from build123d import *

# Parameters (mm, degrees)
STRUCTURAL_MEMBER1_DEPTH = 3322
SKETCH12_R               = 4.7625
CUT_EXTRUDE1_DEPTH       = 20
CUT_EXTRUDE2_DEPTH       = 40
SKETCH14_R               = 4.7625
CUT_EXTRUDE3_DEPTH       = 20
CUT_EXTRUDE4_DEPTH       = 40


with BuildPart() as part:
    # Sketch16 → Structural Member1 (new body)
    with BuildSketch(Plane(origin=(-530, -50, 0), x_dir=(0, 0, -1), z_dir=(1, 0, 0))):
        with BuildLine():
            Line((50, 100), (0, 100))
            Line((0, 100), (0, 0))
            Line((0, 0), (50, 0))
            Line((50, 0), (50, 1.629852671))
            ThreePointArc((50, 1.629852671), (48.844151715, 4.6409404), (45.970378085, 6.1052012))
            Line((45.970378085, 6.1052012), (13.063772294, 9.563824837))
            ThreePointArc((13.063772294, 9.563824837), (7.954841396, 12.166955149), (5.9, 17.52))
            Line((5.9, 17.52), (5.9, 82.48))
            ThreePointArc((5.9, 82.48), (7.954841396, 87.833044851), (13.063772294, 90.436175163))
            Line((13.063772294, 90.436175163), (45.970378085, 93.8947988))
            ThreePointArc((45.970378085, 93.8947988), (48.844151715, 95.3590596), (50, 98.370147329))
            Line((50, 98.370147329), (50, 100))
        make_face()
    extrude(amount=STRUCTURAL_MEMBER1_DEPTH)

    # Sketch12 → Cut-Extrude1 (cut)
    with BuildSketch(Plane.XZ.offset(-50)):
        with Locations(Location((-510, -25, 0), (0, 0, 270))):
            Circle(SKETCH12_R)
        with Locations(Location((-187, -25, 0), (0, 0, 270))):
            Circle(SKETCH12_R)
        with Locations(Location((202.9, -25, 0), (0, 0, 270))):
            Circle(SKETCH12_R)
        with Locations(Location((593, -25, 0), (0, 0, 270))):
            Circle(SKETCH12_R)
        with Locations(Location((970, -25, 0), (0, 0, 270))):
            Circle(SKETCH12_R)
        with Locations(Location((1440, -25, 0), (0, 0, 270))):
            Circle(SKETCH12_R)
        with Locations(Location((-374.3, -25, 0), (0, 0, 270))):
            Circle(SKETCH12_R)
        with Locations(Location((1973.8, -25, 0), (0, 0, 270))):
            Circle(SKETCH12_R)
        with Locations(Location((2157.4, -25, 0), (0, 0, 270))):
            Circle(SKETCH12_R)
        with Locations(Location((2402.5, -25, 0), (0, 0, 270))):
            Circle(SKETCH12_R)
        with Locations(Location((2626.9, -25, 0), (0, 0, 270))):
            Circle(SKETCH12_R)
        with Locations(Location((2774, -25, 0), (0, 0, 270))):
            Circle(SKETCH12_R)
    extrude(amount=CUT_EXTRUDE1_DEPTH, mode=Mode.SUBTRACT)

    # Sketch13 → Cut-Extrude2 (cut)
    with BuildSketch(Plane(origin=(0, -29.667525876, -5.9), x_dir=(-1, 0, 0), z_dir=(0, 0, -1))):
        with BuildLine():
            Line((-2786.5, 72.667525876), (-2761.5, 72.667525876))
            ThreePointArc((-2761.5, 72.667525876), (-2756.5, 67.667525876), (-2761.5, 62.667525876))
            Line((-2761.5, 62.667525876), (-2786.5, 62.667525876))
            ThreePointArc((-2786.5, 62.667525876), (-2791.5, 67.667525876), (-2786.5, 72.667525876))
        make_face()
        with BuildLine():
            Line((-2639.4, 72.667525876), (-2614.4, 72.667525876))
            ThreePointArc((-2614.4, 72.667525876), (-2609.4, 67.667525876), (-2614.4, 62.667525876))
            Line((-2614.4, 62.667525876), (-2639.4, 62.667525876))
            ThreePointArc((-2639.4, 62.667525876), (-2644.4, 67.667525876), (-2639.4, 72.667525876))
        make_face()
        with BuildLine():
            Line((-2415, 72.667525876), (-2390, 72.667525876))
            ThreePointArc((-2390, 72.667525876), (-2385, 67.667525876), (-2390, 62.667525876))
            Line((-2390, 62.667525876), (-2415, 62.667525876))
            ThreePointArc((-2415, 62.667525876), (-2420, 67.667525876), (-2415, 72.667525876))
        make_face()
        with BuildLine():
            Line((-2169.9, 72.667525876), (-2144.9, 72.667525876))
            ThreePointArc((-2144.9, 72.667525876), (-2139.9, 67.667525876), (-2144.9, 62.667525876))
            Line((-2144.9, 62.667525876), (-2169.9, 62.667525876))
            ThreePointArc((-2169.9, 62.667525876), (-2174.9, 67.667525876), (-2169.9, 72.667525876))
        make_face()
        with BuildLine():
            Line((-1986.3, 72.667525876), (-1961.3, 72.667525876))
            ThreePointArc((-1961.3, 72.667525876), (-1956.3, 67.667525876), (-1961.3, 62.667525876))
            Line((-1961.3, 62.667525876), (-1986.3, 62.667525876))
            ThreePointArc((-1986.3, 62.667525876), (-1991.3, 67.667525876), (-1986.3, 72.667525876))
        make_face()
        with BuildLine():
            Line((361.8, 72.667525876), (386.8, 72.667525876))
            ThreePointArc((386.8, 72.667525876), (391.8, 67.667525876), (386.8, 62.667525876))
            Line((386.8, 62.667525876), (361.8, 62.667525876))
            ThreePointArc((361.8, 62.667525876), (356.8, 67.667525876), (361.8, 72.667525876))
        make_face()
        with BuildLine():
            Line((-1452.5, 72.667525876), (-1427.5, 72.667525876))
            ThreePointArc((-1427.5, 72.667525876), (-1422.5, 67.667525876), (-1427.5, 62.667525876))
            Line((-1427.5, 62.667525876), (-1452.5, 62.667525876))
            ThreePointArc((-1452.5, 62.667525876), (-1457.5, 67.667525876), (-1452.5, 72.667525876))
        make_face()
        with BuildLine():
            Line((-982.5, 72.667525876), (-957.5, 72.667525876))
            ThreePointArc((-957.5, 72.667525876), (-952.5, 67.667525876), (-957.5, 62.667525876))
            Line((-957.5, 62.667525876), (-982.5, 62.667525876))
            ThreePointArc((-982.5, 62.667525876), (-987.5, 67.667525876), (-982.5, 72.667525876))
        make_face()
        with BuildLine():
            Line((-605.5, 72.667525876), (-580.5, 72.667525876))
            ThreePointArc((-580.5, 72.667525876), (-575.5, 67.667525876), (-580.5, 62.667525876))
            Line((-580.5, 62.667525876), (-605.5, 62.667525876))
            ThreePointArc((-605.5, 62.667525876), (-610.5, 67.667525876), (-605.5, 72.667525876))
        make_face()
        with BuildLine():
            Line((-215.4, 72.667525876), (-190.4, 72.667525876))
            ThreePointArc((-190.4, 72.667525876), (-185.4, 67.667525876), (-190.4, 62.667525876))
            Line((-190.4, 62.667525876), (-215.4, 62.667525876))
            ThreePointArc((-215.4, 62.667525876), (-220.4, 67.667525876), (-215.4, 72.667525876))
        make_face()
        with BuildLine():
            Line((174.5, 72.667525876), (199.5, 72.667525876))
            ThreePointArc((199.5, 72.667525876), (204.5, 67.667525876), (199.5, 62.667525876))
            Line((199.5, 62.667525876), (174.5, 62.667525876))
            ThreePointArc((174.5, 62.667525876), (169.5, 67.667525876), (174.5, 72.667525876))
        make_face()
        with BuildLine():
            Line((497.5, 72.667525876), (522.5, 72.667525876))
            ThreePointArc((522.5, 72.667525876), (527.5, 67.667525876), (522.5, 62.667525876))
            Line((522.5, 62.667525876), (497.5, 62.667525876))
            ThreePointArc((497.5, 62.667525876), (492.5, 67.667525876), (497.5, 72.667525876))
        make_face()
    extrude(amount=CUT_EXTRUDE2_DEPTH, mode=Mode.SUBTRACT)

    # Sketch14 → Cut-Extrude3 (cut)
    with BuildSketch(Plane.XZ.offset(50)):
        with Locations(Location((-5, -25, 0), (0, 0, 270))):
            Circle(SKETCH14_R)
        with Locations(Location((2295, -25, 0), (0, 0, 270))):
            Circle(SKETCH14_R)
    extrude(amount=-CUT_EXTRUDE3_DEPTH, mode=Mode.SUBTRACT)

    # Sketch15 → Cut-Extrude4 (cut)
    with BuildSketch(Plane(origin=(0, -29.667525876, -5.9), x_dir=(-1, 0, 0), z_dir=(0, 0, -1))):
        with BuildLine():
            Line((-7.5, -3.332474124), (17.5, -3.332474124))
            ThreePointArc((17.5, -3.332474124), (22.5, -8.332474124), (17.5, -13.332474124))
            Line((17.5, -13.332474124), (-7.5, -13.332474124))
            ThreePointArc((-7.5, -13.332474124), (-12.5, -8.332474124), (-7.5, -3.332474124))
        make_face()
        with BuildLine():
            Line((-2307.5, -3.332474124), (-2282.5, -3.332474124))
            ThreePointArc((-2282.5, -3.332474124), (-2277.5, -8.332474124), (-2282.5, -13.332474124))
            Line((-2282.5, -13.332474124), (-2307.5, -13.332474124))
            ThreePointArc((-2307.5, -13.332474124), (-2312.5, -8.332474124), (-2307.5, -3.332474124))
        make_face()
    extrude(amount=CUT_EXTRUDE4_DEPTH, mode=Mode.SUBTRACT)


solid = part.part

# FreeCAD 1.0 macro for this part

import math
import FreeCAD as App
import Part
import Sketcher
from FreeCAD import Vector
Q = App.Units.Quantity

doc = App.newDocument("Part")
body = doc.addObject("PartDesign::Body", "Body")

sketch1 = body.newObject("Sketcher::SketchObject", "Sketch")
sketch1.AttachmentSupport = (doc.getObject("YZ_Plane"), [""])
sketch1.MapMode = "FlatFace"
sketch1.AttachmentOffset = App.Placement(Vector(0, 0, -530), App.Rotation())
sketch1.addGeometry([
    Part.LineSegment(Vector(50, -50, 0), Vector(50, 0, 0)),
    Part.LineSegment(Vector(50, 0, 0), Vector(-50, 0, 0)),
    Part.LineSegment(Vector(-50, 0, 0), Vector(-50, -50, 0)),
    Part.LineSegment(Vector(-50, -50, 0), Vector(-48.4, -50, 0)),
    Part.ArcOfCircle(Part.Circle(Vector(-48.4, -45.5, 0), Vector(0, 0, 1), 4.5), math.radians(-90), math.radians(-6)),
    Part.LineSegment(Vector(-43.9, -46, 0), Vector(-40.4, -13.1, 0)),
    Part.ArcOfCircle(Part.Circle(Vector(-32.5, -13.9, 0), Vector(0, 0, 1), 8), math.radians(90), math.radians(174)),
    Part.LineSegment(Vector(-32.5, -5.9, 0), Vector(32.5, -5.9, 0)),
    Part.ArcOfCircle(Part.Circle(Vector(32.5, -13.9, 0), Vector(0, 0, 1), 8), math.radians(6), math.radians(90)),
    Part.LineSegment(Vector(40.4, -13.1, 0), Vector(43.9, -46, 0)),
    Part.ArcOfCircle(Part.Circle(Vector(48.4, -45.5, 0), Vector(0, 0, 1), 4.5), math.radians(-174), math.radians(-90)),
    Part.LineSegment(Vector(48.4, -50, 0), Vector(50, -50, 0)),
], False)
sketch1.addConstraint([
    Sketcher.Constraint("Coincident", 0, 2, 1, 1),
    Sketcher.Constraint("Coincident", 1, 2, 2, 1),
    Sketcher.Constraint("Coincident", 2, 2, 3, 1),
    Sketcher.Constraint("Tangent", 3, 2, 4, 1),
    Sketcher.Constraint("Tangent", 4, 2, 5, 1),
    Sketcher.Constraint("Tangent", 5, 2, 6, 2),
    Sketcher.Constraint("Tangent", 6, 1, 7, 1),
    Sketcher.Constraint("Tangent", 7, 2, 8, 2),
    Sketcher.Constraint("Tangent", 8, 1, 9, 1),
    Sketcher.Constraint("Tangent", 9, 2, 10, 1),
    Sketcher.Constraint("Tangent", 10, 2, 11, 1),
    Sketcher.Constraint("Coincident", 11, 2, 0, 1),
    Sketcher.Constraint("Vertical", 0),
    Sketcher.Constraint("Horizontal", 1),
    Sketcher.Constraint("Vertical", 2),
    Sketcher.Constraint("Horizontal", 3),
    Sketcher.Constraint("Horizontal", 7),
    Sketcher.Constraint("Horizontal", 11),
    Sketcher.Constraint("Equal", 6, 8),
    Sketcher.Constraint("Equal", 4, 10),
    Sketcher.Constraint("Symmetric", 0, 2, 1, 2, -1, 1),
    Sketcher.Constraint("Symmetric", 4, 3, 10, 3, -2),
    Sketcher.Constraint("Horizontal", 5, 2, 8, 1),
    Sketcher.Constraint("Radius", 6, 8.0),
    Sketcher.Constraint("Radius", 4, 4.5),
    Sketcher.Constraint("DistanceX", 1, 2, 1, 1, 100.0),
    Sketcher.Constraint("DistanceY", 0, 1, 0, 2, 50.0),
    Sketcher.Constraint("Angle", 5, Q("84 deg")),
    Sketcher.Constraint("DistanceX", 7, 1, 7, 2, 64.96),
    Sketcher.Constraint("DistanceY", 6, 3, -1, 1, 13.9),
])
pad1 = body.newObject("PartDesign::Pad", "Pad")
pad1.Profile = sketch1
pad1.Length = 3322

sketch2 = body.newObject("Sketcher::SketchObject", "Sketch001")
sketch2.AttachmentSupport = (doc.getObject("XZ_Plane"), [""])
sketch2.MapMode = "FlatFace"
sketch2.AttachmentOffset = App.Placement(Vector(0, 0, -50), App.Rotation())
sketch2.addGeometry([
    Part.Circle(Vector(-510, -25, 0), Vector(0, 0, 1), 4.8),
    Part.Circle(Vector(-187, -25, 0), Vector(0, 0, 1), 4.8),
    Part.Circle(Vector(202.9, -25, 0), Vector(0, 0, 1), 4.8),
    Part.Circle(Vector(593, -25, 0), Vector(0, 0, 1), 4.8),
    Part.Circle(Vector(970, -25, 0), Vector(0, 0, 1), 4.8),
    Part.Circle(Vector(1440, -25, 0), Vector(0, 0, 1), 4.8),
    Part.Circle(Vector(-374.3, -25, 0), Vector(0, 0, 1), 4.8),
    Part.Circle(Vector(1973.8, -25, 0), Vector(0, 0, 1), 4.8),
    Part.Circle(Vector(2157.4, -25, 0), Vector(0, 0, 1), 4.8),
    Part.Circle(Vector(2402.5, -25, 0), Vector(0, 0, 1), 4.8),
    Part.Circle(Vector(2626.9, -25, 0), Vector(0, 0, 1), 4.8),
    Part.Circle(Vector(2774, -25, 0), Vector(0, 0, 1), 4.8),
], False)
sketch2.addConstraint([
    Sketcher.Constraint("Equal", 0, 1),
    Sketcher.Constraint("Equal", 1, 2),
    Sketcher.Constraint("Equal", 2, 3),
    Sketcher.Constraint("Equal", 3, 4),
    Sketcher.Constraint("Equal", 4, 5),
    Sketcher.Constraint("Equal", 5, 6),
    Sketcher.Constraint("Equal", 6, 7),
    Sketcher.Constraint("Equal", 7, 8),
    Sketcher.Constraint("Equal", 8, 9),
    Sketcher.Constraint("Equal", 9, 10),
    Sketcher.Constraint("Equal", 10, 11),
    Sketcher.Constraint("Horizontal", 0, 3, 1, 3),
    Sketcher.Constraint("Horizontal", 1, 3, 2, 3),
    Sketcher.Constraint("Horizontal", 2, 3, 3, 3),
    Sketcher.Constraint("Horizontal", 3, 3, 4, 3),
    Sketcher.Constraint("Horizontal", 4, 3, 5, 3),
    Sketcher.Constraint("Horizontal", 5, 3, 6, 3),
    Sketcher.Constraint("Horizontal", 6, 3, 7, 3),
    Sketcher.Constraint("Horizontal", 7, 3, 8, 3),
    Sketcher.Constraint("Horizontal", 8, 3, 9, 3),
    Sketcher.Constraint("Horizontal", 9, 3, 10, 3),
    Sketcher.Constraint("Horizontal", 10, 3, 11, 3),
    Sketcher.Constraint("Diameter", 0, 9.525),
    Sketcher.Constraint("DistanceX", 0, 3, -1, 1, 510.0),
    Sketcher.Constraint("DistanceY", 0, 3, -1, 1, 25.0),
    Sketcher.Constraint("DistanceX", 1, 3, -1, 1, 187.0),
    Sketcher.Constraint("DistanceX", -1, 1, 3, 3, 593.0),
    Sketcher.Constraint("DistanceX", -1, 1, 4, 3, 970.0),
    Sketcher.Constraint("DistanceX", -1, 1, 5, 3, 1440.0),
    Sketcher.Constraint("DistanceX", -1, 1, 11, 3, 2774.0),
    Sketcher.Constraint("DistanceX", -1, 1, 2, 3, 202.9),
    Sketcher.Constraint("DistanceX", 6, 3, -1, 1, 374.3),
    Sketcher.Constraint("DistanceX", -1, 1, 7, 3, 1973.8),
    Sketcher.Constraint("DistanceX", -1, 1, 8, 3, 2157.4),
    Sketcher.Constraint("DistanceX", -1, 1, 9, 3, 2402.5),
    Sketcher.Constraint("DistanceX", -1, 1, 10, 3, 2626.9),
])
pocket1 = body.newObject("PartDesign::Pocket", "Pocket")
pocket1.Profile = sketch2
pocket1.Length = 20
pocket1.Reversed = True

sketch3 = body.newObject("Sketcher::SketchObject", "Sketch002")
sketch3.AttachmentSupport = (doc.getObject("XY_Plane"), [""])
sketch3.MapMode = "FlatFace"
sketch3.AttachmentOffset = App.Placement(Vector(0, 0, -5.9), App.Rotation())
sketch3.addGeometry([
    Part.LineSegment(Vector(2762, 43, 0), Vector(2786, 43, 0)),
    Part.ArcOfCircle(Part.Circle(Vector(2786, 38, 0), Vector(0, 0, 1), 5), math.radians(-90), math.radians(90)),
    Part.LineSegment(Vector(2786, 33, 0), Vector(2762, 33, 0)),
    Part.ArcOfCircle(Part.Circle(Vector(2762, 38, 0), Vector(0, 0, 1), 5), math.radians(90), math.radians(270)),
    Part.LineSegment(Vector(2614, 43, 0), Vector(2639, 43, 0)),
    Part.ArcOfCircle(Part.Circle(Vector(2639, 38, 0), Vector(0, 0, 1), 5), math.radians(-90), math.radians(90)),
    Part.LineSegment(Vector(2639, 33, 0), Vector(2614, 33, 0)),
    Part.ArcOfCircle(Part.Circle(Vector(2614, 38, 0), Vector(0, 0, 1), 5), math.radians(90), math.radians(270)),
    Part.LineSegment(Vector(2390, 43, 0), Vector(2415, 43, 0)),
    Part.ArcOfCircle(Part.Circle(Vector(2415, 38, 0), Vector(0, 0, 1), 5), math.radians(-90), math.radians(90)),
    Part.LineSegment(Vector(2415, 33, 0), Vector(2390, 33, 0)),
    Part.ArcOfCircle(Part.Circle(Vector(2390, 38, 0), Vector(0, 0, 1), 5), math.radians(90), math.radians(270)),
    Part.LineSegment(Vector(2145, 43, 0), Vector(2170, 43, 0)),
    Part.ArcOfCircle(Part.Circle(Vector(2170, 38, 0), Vector(0, 0, 1), 5), math.radians(-90), math.radians(90)),
    Part.LineSegment(Vector(2170, 33, 0), Vector(2145, 33, 0)),
    Part.ArcOfCircle(Part.Circle(Vector(2145, 38, 0), Vector(0, 0, 1), 5), math.radians(90), math.radians(270)),
    Part.LineSegment(Vector(1961, 43, 0), Vector(1986, 43, 0)),
    Part.ArcOfCircle(Part.Circle(Vector(1986, 38, 0), Vector(0, 0, 1), 5), math.radians(-90), math.radians(90)),
    Part.LineSegment(Vector(1986, 33, 0), Vector(1961, 33, 0)),
    Part.ArcOfCircle(Part.Circle(Vector(1961, 38, 0), Vector(0, 0, 1), 5), math.radians(90), math.radians(270)),
    Part.LineSegment(Vector(-387, 43, 0), Vector(-362, 43, 0)),
    Part.ArcOfCircle(Part.Circle(Vector(-362, 38, 0), Vector(0, 0, 1), 5), math.radians(-90), math.radians(90)),
    Part.LineSegment(Vector(-362, 33, 0), Vector(-387, 33, 0)),
    Part.ArcOfCircle(Part.Circle(Vector(-387, 38, 0), Vector(0, 0, 1), 5), math.radians(90), math.radians(270)),
    Part.LineSegment(Vector(1428, 43, 0), Vector(1452, 43, 0)),
    Part.ArcOfCircle(Part.Circle(Vector(1452, 38, 0), Vector(0, 0, 1), 5), math.radians(-90), math.radians(90)),
    Part.LineSegment(Vector(1452, 33, 0), Vector(1428, 33, 0)),
    Part.ArcOfCircle(Part.Circle(Vector(1428, 38, 0), Vector(0, 0, 1), 5), math.radians(90), math.radians(270)),
    Part.LineSegment(Vector(958, 43, 0), Vector(982, 43, 0)),
    Part.ArcOfCircle(Part.Circle(Vector(982, 38, 0), Vector(0, 0, 1), 5), math.radians(-90), math.radians(90)),
    Part.LineSegment(Vector(982, 33, 0), Vector(958, 33, 0)),
    Part.ArcOfCircle(Part.Circle(Vector(958, 38, 0), Vector(0, 0, 1), 5), math.radians(90), math.radians(270)),
    Part.LineSegment(Vector(580, 43, 0), Vector(606, 43, 0)),
    Part.ArcOfCircle(Part.Circle(Vector(606, 38, 0), Vector(0, 0, 1), 5), math.radians(-90), math.radians(90)),
    Part.LineSegment(Vector(606, 33, 0), Vector(580, 33, 0)),
    Part.ArcOfCircle(Part.Circle(Vector(580, 38, 0), Vector(0, 0, 1), 5), math.radians(90), math.radians(270)),
    Part.LineSegment(Vector(190, 43, 0), Vector(215, 43, 0)),
    Part.ArcOfCircle(Part.Circle(Vector(215, 38, 0), Vector(0, 0, 1), 5), math.radians(-90), math.radians(90)),
    Part.LineSegment(Vector(215, 33, 0), Vector(190, 33, 0)),
    Part.ArcOfCircle(Part.Circle(Vector(190, 38, 0), Vector(0, 0, 1), 5), math.radians(90), math.radians(270)),
    Part.LineSegment(Vector(-200, 43, 0), Vector(-174, 43, 0)),
    Part.ArcOfCircle(Part.Circle(Vector(-174, 38, 0), Vector(0, 0, 1), 5), math.radians(-90), math.radians(90)),
    Part.LineSegment(Vector(-174, 33, 0), Vector(-200, 33, 0)),
    Part.ArcOfCircle(Part.Circle(Vector(-200, 38, 0), Vector(0, 0, 1), 5), math.radians(90), math.radians(270)),
    Part.LineSegment(Vector(-522, 43, 0), Vector(-498, 43, 0)),
    Part.ArcOfCircle(Part.Circle(Vector(-498, 38, 0), Vector(0, 0, 1), 5), math.radians(-90), math.radians(90)),
    Part.LineSegment(Vector(-498, 33, 0), Vector(-522, 33, 0)),
    Part.ArcOfCircle(Part.Circle(Vector(-522, 38, 0), Vector(0, 0, 1), 5), math.radians(90), math.radians(270)),
], False)
sketch3.addConstraint([
    Sketcher.Constraint("Tangent", 0, 2, 1, 2),
    Sketcher.Constraint("Tangent", 1, 1, 2, 1),
    Sketcher.Constraint("Tangent", 2, 2, 3, 2),
    Sketcher.Constraint("Tangent", 3, 1, 0, 1),
    Sketcher.Constraint("Tangent", 4, 2, 5, 2),
    Sketcher.Constraint("Tangent", 5, 1, 6, 1),
    Sketcher.Constraint("Tangent", 6, 2, 7, 2),
    Sketcher.Constraint("Tangent", 7, 1, 4, 1),
    Sketcher.Constraint("Tangent", 8, 2, 9, 2),
    Sketcher.Constraint("Tangent", 9, 1, 10, 1),
    Sketcher.Constraint("Tangent", 10, 2, 11, 2),
    Sketcher.Constraint("Tangent", 11, 1, 8, 1),
    Sketcher.Constraint("Tangent", 12, 2, 13, 2),
    Sketcher.Constraint("Tangent", 13, 1, 14, 1),
    Sketcher.Constraint("Tangent", 14, 2, 15, 2),
    Sketcher.Constraint("Tangent", 15, 1, 12, 1),
    Sketcher.Constraint("Tangent", 16, 2, 17, 2),
    Sketcher.Constraint("Tangent", 17, 1, 18, 1),
    Sketcher.Constraint("Tangent", 18, 2, 19, 2),
    Sketcher.Constraint("Tangent", 19, 1, 16, 1),
    Sketcher.Constraint("Tangent", 20, 2, 21, 2),
    Sketcher.Constraint("Tangent", 21, 1, 22, 1),
    Sketcher.Constraint("Tangent", 22, 2, 23, 2),
    Sketcher.Constraint("Tangent", 23, 1, 20, 1),
    Sketcher.Constraint("Tangent", 24, 2, 25, 2),
    Sketcher.Constraint("Tangent", 25, 1, 26, 1),
    Sketcher.Constraint("Tangent", 26, 2, 27, 2),
    Sketcher.Constraint("Tangent", 27, 1, 24, 1),
    Sketcher.Constraint("Tangent", 28, 2, 29, 2),
    Sketcher.Constraint("Tangent", 29, 1, 30, 1),
    Sketcher.Constraint("Tangent", 30, 2, 31, 2),
    Sketcher.Constraint("Tangent", 31, 1, 28, 1),
    Sketcher.Constraint("Tangent", 32, 2, 33, 2),
    Sketcher.Constraint("Tangent", 33, 1, 34, 1),
    Sketcher.Constraint("Tangent", 34, 2, 35, 2),
    Sketcher.Constraint("Tangent", 35, 1, 32, 1),
    Sketcher.Constraint("Tangent", 36, 2, 37, 2),
    Sketcher.Constraint("Tangent", 37, 1, 38, 1),
    Sketcher.Constraint("Tangent", 38, 2, 39, 2),
    Sketcher.Constraint("Tangent", 39, 1, 36, 1),
    Sketcher.Constraint("Tangent", 40, 2, 41, 2),
    Sketcher.Constraint("Tangent", 41, 1, 42, 1),
    Sketcher.Constraint("Tangent", 42, 2, 43, 2),
    Sketcher.Constraint("Tangent", 43, 1, 40, 1),
    Sketcher.Constraint("Tangent", 44, 2, 45, 2),
    Sketcher.Constraint("Tangent", 45, 1, 46, 1),
    Sketcher.Constraint("Tangent", 46, 2, 47, 2),
    Sketcher.Constraint("Tangent", 47, 1, 44, 1),
    Sketcher.Constraint("Horizontal", 0),
    Sketcher.Constraint("Horizontal", 2),
    Sketcher.Constraint("Horizontal", 4),
    Sketcher.Constraint("Horizontal", 6),
    Sketcher.Constraint("Horizontal", 8),
    Sketcher.Constraint("Horizontal", 10),
    Sketcher.Constraint("Horizontal", 12),
    Sketcher.Constraint("Horizontal", 14),
    Sketcher.Constraint("Horizontal", 16),
    Sketcher.Constraint("Horizontal", 18),
    Sketcher.Constraint("Horizontal", 20),
    Sketcher.Constraint("Horizontal", 22),
    Sketcher.Constraint("Horizontal", 24),
    Sketcher.Constraint("Horizontal", 26),
    Sketcher.Constraint("Horizontal", 28),
    Sketcher.Constraint("Horizontal", 30),
    Sketcher.Constraint("Horizontal", 32),
    Sketcher.Constraint("Horizontal", 34),
    Sketcher.Constraint("Horizontal", 36),
    Sketcher.Constraint("Horizontal", 38),
    Sketcher.Constraint("Horizontal", 40),
    Sketcher.Constraint("Horizontal", 42),
    Sketcher.Constraint("Horizontal", 44),
    Sketcher.Constraint("Horizontal", 46),
    Sketcher.Constraint("Equal", 3, 5),
    Sketcher.Constraint("Equal", 7, 9),
    Sketcher.Constraint("Equal", 11, 13),
    Sketcher.Constraint("Equal", 15, 17),
    Sketcher.Constraint("Equal", 19, 21),
    Sketcher.Constraint("Equal", 23, 25),
    Sketcher.Constraint("Equal", 27, 29),
    Sketcher.Constraint("Equal", 31, 33),
    Sketcher.Constraint("Equal", 35, 37),
    Sketcher.Constraint("Equal", 39, 41),
    Sketcher.Constraint("Equal", 43, 45),
    Sketcher.Constraint("Horizontal", 3, 3, 5, 3),
    Sketcher.Constraint("Horizontal", 7, 3, 9, 3),
    Sketcher.Constraint("Horizontal", 11, 3, 13, 3),
    Sketcher.Constraint("Horizontal", 15, 3, 17, 3),
    Sketcher.Constraint("Horizontal", 19, 3, 21, 3),
    Sketcher.Constraint("Horizontal", 23, 3, 25, 3),
    Sketcher.Constraint("Horizontal", 27, 3, 29, 3),
    Sketcher.Constraint("Horizontal", 31, 3, 33, 3),
    Sketcher.Constraint("Horizontal", 35, 3, 37, 3),
    Sketcher.Constraint("Horizontal", 39, 3, 41, 3),
    Sketcher.Constraint("Horizontal", 43, 3, 45, 3),
    Sketcher.Constraint("Equal", 2, 4),
    Sketcher.Constraint("Equal", 6, 8),
    Sketcher.Constraint("Equal", 10, 12),
    Sketcher.Constraint("Equal", 14, 16),
    Sketcher.Constraint("Equal", 18, 20),
    Sketcher.Constraint("Equal", 22, 24),
    Sketcher.Constraint("Equal", 26, 28),
    Sketcher.Constraint("Equal", 30, 32),
    Sketcher.Constraint("Equal", 34, 36),
    Sketcher.Constraint("Equal", 38, 40),
    Sketcher.Constraint("Equal", 42, 44),
    Sketcher.Constraint("Radius", 1, 5.0),
    Sketcher.Constraint("DistanceX", 0, 1, 0, 2, 25.0),
    Sketcher.Constraint("DistanceY", -1, 1, 1, 3, 38.0),
    Sketcher.Constraint("DistanceX", -1, 1, 9, 3, 2415.0),
    Sketcher.Constraint("DistanceX", -1, 1, 1, 3, 2786.5),
    Sketcher.Constraint("DistanceX", -1, 1, 5, 3, 2639.4),
    Sketcher.Constraint("DistanceX", -1, 1, 13, 3, 2169.9),
    Sketcher.Constraint("DistanceX", -1, 1, 17, 3, 1986.3),
    Sketcher.Constraint("DistanceX", 21, 3, -1, 1, 361.8),
    Sketcher.Constraint("DistanceX", -1, 1, 25, 3, 1452.5),
    Sketcher.Constraint("DistanceX", -1, 1, 29, 3, 982.5),
    Sketcher.Constraint("DistanceX", -1, 1, 33, 3, 605.5),
    Sketcher.Constraint("DistanceX", -1, 1, 37, 3, 215.4),
    Sketcher.Constraint("DistanceX", 41, 3, -1, 1, 174.5),
    Sketcher.Constraint("DistanceX", 45, 3, -1, 1, 497.5),
])
pocket2 = body.newObject("PartDesign::Pocket", "Pocket001")
pocket2.Profile = sketch3
pocket2.Length = 40

sketch4 = body.newObject("Sketcher::SketchObject", "Sketch003")
sketch4.AttachmentSupport = (doc.getObject("XZ_Plane"), [""])
sketch4.MapMode = "FlatFace"
sketch4.AttachmentOffset = App.Placement(Vector(0, 0, 50), App.Rotation())
sketch4.addGeometry([
    Part.Circle(Vector(-5, -25, 0), Vector(0, 0, 1), 4.8),
    Part.Circle(Vector(2295, -25, 0), Vector(0, 0, 1), 4.8),
], False)
sketch4.addConstraint([
    Sketcher.Constraint("Equal", 0, 1),
    Sketcher.Constraint("Horizontal", 0, 3, 1, 3),
    Sketcher.Constraint("Diameter", 0, 9.525),
    Sketcher.Constraint("DistanceX", 0, 3, -1, 1, 5.0),
    Sketcher.Constraint("DistanceY", 0, 3, -1, 1, 25.0),
    Sketcher.Constraint("DistanceX", -1, 1, 1, 3, 2295.0),
])
pocket3 = body.newObject("PartDesign::Pocket", "Pocket002")
pocket3.Profile = sketch4
pocket3.Length = 20

sketch5 = body.newObject("Sketcher::SketchObject", "Sketch004")
sketch5.AttachmentSupport = (doc.getObject("XY_Plane"), [""])
sketch5.MapMode = "FlatFace"
sketch5.AttachmentOffset = App.Placement(Vector(0, 0, -5.9), App.Rotation())
sketch5.addGeometry([
    Part.LineSegment(Vector(-18, -33, 0), Vector(8, -33, 0)),
    Part.ArcOfCircle(Part.Circle(Vector(8, -38, 0), Vector(0, 0, 1), 5), math.radians(-90), math.radians(90)),
    Part.LineSegment(Vector(8, -43, 0), Vector(-18, -43, 0)),
    Part.ArcOfCircle(Part.Circle(Vector(-18, -38, 0), Vector(0, 0, 1), 5), math.radians(90), math.radians(270)),
    Part.LineSegment(Vector(2282, -33, 0), Vector(2308, -33, 0)),
    Part.ArcOfCircle(Part.Circle(Vector(2308, -38, 0), Vector(0, 0, 1), 5), math.radians(-90), math.radians(90)),
    Part.LineSegment(Vector(2308, -43, 0), Vector(2282, -43, 0)),
    Part.ArcOfCircle(Part.Circle(Vector(2282, -38, 0), Vector(0, 0, 1), 5), math.radians(90), math.radians(270)),
], False)
sketch5.addConstraint([
    Sketcher.Constraint("Tangent", 0, 2, 1, 2),
    Sketcher.Constraint("Tangent", 1, 1, 2, 1),
    Sketcher.Constraint("Tangent", 2, 2, 3, 2),
    Sketcher.Constraint("Tangent", 3, 1, 0, 1),
    Sketcher.Constraint("Tangent", 4, 2, 5, 2),
    Sketcher.Constraint("Tangent", 5, 1, 6, 1),
    Sketcher.Constraint("Tangent", 6, 2, 7, 2),
    Sketcher.Constraint("Tangent", 7, 1, 4, 1),
    Sketcher.Constraint("Horizontal", 0),
    Sketcher.Constraint("Horizontal", 2),
    Sketcher.Constraint("Horizontal", 4),
    Sketcher.Constraint("Horizontal", 6),
    Sketcher.Constraint("Equal", 3, 5),
    Sketcher.Constraint("Horizontal", 3, 3, 5, 3),
    Sketcher.Constraint("Equal", 2, 4),
    Sketcher.Constraint("Radius", 1, 5.0),
    Sketcher.Constraint("DistanceX", 0, 1, 0, 2, 25.0),
    Sketcher.Constraint("DistanceY", 1, 3, -1, 1, 38.0),
    Sketcher.Constraint("DistanceX", 1, 3, 5, 3, 2300.0),
    Sketcher.Constraint("DistanceX", -1, 1, 1, 3, 7.5),
])
pocket4 = body.newObject("PartDesign::Pocket", "Pocket003")
pocket4.Profile = sketch5
pocket4.Length = 40

doc.recompute()
